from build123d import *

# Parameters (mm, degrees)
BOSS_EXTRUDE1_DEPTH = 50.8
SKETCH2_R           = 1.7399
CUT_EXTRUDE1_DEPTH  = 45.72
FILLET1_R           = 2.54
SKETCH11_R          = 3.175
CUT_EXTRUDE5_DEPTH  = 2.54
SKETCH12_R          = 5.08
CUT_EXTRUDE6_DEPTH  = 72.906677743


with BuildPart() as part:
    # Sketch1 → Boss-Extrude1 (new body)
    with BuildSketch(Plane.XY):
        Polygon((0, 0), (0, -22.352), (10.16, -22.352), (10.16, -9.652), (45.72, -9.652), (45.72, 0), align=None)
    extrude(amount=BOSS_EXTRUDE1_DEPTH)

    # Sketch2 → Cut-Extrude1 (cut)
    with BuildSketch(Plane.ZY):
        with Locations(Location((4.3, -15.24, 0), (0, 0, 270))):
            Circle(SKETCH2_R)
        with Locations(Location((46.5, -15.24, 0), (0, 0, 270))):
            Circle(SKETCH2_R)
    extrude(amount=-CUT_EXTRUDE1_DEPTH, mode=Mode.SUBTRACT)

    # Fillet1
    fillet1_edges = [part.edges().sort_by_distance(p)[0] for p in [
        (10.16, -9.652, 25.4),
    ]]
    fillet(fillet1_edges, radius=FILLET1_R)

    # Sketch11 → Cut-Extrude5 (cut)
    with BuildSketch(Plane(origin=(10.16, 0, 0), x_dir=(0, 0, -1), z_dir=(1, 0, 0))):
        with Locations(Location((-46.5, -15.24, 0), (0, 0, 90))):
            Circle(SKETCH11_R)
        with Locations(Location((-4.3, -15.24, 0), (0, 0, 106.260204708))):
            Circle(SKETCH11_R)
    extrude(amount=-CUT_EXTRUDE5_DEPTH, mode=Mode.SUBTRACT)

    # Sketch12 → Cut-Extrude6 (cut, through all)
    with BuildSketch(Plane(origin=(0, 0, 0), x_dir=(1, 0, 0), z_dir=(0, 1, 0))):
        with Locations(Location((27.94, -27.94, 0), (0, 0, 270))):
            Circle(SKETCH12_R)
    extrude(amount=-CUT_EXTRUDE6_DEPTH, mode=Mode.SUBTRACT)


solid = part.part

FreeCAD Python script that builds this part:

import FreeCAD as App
import Part
import Sketcher
from FreeCAD import Vector
Q = App.Units.Quantity


def edges_at(feature, points):
    """Names of the edges that pass closest to the given points."""
    edges = feature.Shape.Edges
    near = lambda p: min(range(len(edges)), key=lambda i: edges[i].distToShape(Part.Vertex(*p))[0])
    return sorted({f"Edge{near(p) + 1}" for p in points})


def add_polygon(sketch, points):
    """Adds a closed chain of lines whose ends are joined by coincident constraints."""
    first, n = sketch.GeometryCount, len(points)
    for a, b in zip(points, points[1:] + points[:1]):
        sketch.addGeometry(Part.LineSegment(App.Vector(*a, 0), App.Vector(*b, 0)), False)
    for i in range(n):
        sketch.addConstraint(Sketcher.Constraint("Coincident", first + i, 2, first + (i + 1) % n, 1))

doc = App.newDocument("Part")
body = doc.addObject("PartDesign::Body", "Body")

sketch1 = doc.addObject("Sketcher::SketchObject", "Sketch")
body.addObject(sketch1)
sketch1.AttachmentSupport = (doc.XY_Plane, [""])
sketch1.MapMode = "FlatFace"
add_polygon(sketch1, [(0, 0), (0, -22), (10, -22), (10, -10), (46, -10), (46, 0)])
sketch1.addConstraint([
    Sketcher.Constraint("Vertical", 0),
    Sketcher.Constraint("Horizontal", 1),
    Sketcher.Constraint("Vertical", 2),
    Sketcher.Constraint("Horizontal", 3),
    Sketcher.Constraint("Vertical", 4),
    Sketcher.Constraint("Horizontal", 5),
    Sketcher.Constraint("Coincident", 5, 2, -1, 1),
    Sketcher.Constraint("DistanceX", 1, 1, 1, 2, Q("0.4 in")),
    Sketcher.Constraint("DistanceX", 3, 1, 3, 2, Q("1.4 in")),
    Sketcher.Constraint("DistanceY", 2, 1, 2, 2, Q("0.5 in")),
    Sketcher.Constraint("DistanceY", 0, 2, 0, 1, Q("0.88 in")),
])
pad1 = doc.addObject("PartDesign::Pad", "Pad")
body.addObject(pad1)
pad1.Profile = sketch1
pad1.Length = Q("2 in")

sketch2 = doc.addObject("Sketcher::SketchObject", "Sketch001")
body.addObject(sketch2)
sketch2.AttachmentSupport = (doc.YZ_Plane, [""])
sketch2.MapMode = "FlatFace"
sketch2.addGeometry([
    Part.Circle(Vector(-15.2, 4.3, 0), Vector(0, 0, 1), 1.7),
    Part.Circle(Vector(-15.2, 46.5, 0), Vector(0, 0, 1), 1.7),
], False)
sketch2.addConstraint([
    Sketcher.Constraint("Equal", 0, 1),
    Sketcher.Constraint("Vertical", 0, 3, 1, 3),
    Sketcher.Constraint("Diameter", 0, Q("0.137 in")),
    Sketcher.Constraint("DistanceX", 0, 3, -1, 1, Q("0.6 in")),
    Sketcher.Constraint("DistanceY", -1, 1, 0, 3, Q("4.3 mm")),
    Sketcher.Constraint("DistanceY", -1, 1, 1, 3, Q("46.5 mm")),
])
pocket1 = doc.addObject("PartDesign::Pocket", "Pocket")
body.addObject(pocket1)
pocket1.Profile = sketch2
pocket1.Length = Q("1.8 in")
pocket1.Reversed = True
doc.recompute()

fillet = doc.addObject("PartDesign::Fillet", "Fillet")
body.addObject(fillet)
fillet.Base = (pocket1, edges_at(pocket1, [(10.16, -9.652, 25.4)]))
fillet.Radius = Q("0.1 in")

sketch3 = doc.addObject("Sketcher::SketchObject", "Sketch002")
body.addObject(sketch3)
sketch3.AttachmentSupport = (doc.YZ_Plane, [""])
sketch3.MapMode = "FlatFace"
sketch3.AttachmentOffset = App.Placement(Vector(0, 0, 0.4 * 25.4), App.Rotation())
sketch3.addGeometry([
    Part.Circle(Vector(-15.2, 46.5, 0), Vector(0, 0, 1), 3.2),
    Part.Circle(Vector(-15.2, 4.3, 0), Vector(0, 0, 1), 3.2),
], False)
sketch3.addConstraint([
    Sketcher.Constraint("Equal", 0, 1),
    Sketcher.Constraint("Vertical", 0, 3, 1, 3),
    Sketcher.Constraint("Diameter", 0, Q("0.25 in")),
    Sketcher.Constraint("DistanceX", 0, 3, -1, 1, Q("0.6 in")),
    Sketcher.Constraint("DistanceY", -1, 1, 0, 3, Q("46.5 mm")),
    Sketcher.Constraint("DistanceY", -1, 1, 1, 3, Q("4.3 mm")),
])
pocket2 = doc.addObject("PartDesign::Pocket", "Pocket001")
body.addObject(pocket2)
pocket2.Profile = sketch3
pocket2.Length = Q("0.1 in")

sketch4 = doc.addObject("Sketcher::SketchObject", "Sketch003")
body.addObject(sketch4)
sketch4.AttachmentSupport = (doc.XZ_Plane, [""])
sketch4.MapMode = "FlatFace"
sketch4.addGeometry(Part.Circle(Vector(28, 28, 0), Vector(0, 0, 1), 5), False)
sketch4.addConstraint([
    Sketcher.Constraint("Diameter", 0, Q("0.4 in")),
    Sketcher.Constraint("DistanceX", -1, 1, 0, 3, Q("1.1 in")),
    Sketcher.Constraint("DistanceY", -1, 1, 0, 3, Q("1.1 in")),
])
pocket3 = doc.addObject("PartDesign::Pocket", "Pocket002")
body.addObject(pocket3)
pocket3.Profile = sketch4
pocket3.Type = "ThroughAll"
pocket3.Reversed = True

doc.recompute()
